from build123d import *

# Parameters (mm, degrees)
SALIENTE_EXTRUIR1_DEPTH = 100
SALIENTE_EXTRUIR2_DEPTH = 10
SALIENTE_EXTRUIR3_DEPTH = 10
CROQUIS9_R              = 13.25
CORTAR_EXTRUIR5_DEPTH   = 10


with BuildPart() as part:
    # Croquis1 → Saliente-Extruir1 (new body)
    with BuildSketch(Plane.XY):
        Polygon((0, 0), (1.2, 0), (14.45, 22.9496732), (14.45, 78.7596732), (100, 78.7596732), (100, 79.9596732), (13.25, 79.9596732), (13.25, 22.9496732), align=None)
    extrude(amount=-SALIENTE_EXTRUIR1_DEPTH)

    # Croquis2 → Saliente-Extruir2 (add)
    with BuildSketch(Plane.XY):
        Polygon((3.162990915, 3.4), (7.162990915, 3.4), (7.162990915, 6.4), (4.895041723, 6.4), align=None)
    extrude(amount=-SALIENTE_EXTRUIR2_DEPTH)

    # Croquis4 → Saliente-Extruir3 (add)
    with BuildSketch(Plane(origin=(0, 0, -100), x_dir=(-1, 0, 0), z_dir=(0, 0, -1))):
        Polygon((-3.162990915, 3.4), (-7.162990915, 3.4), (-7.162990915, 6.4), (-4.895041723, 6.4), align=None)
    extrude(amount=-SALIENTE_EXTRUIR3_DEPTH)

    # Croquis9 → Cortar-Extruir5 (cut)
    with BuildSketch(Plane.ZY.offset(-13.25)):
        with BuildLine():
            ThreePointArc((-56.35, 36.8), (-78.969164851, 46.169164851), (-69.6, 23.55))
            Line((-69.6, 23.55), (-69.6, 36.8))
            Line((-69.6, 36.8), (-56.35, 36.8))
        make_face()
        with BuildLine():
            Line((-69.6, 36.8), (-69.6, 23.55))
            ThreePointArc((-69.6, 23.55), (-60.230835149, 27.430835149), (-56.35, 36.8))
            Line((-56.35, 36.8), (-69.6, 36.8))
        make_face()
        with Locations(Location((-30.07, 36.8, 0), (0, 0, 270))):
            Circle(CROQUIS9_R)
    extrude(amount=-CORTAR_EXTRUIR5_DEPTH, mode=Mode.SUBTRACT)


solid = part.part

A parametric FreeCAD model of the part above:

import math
import FreeCAD as App
import Part
import Sketcher

V = App.Vector
Q = App.Units.Quantity


def add_polygon(sketch, points):
    """Adds a closed chain of lines whose ends are joined by coincident constraints."""
    first, n = sketch.GeometryCount, len(points)
    for a, b in zip(points, points[1:] + points[:1]):
        sketch.addGeometry(Part.LineSegment(App.Vector(*a, 0), App.Vector(*b, 0)), False)
    for i in range(n):
        sketch.addConstraint(Sketcher.Constraint("Coincident", first + i, 2, first + (i + 1) % n, 1))

doc = App.newDocument("Part")
body = doc.addObject("PartDesign::Body", "Body")

sketch1 = body.newObject("Sketcher::SketchObject", "Sketch")
sketch1.AttachmentSupport = (doc.getObject("XY_Plane"), [""])
sketch1.MapMode = "FlatFace"
add_polygon(sketch1, [(0, 0), (1.2, 0), (14.45, 22.949673), (14.45, 78.759673), (100, 78.759673), (100, 79.959673), (13.25, 79.959673), (13.25, 22.949673)])
sketch1.addConstraint([
    Sketcher.Constraint("Horizontal", 0),
    Sketcher.Constraint("Vertical", 2),
    Sketcher.Constraint("Horizontal", 3),
    Sketcher.Constraint("Vertical", 4),
    Sketcher.Constraint("Horizontal", 5),
    Sketcher.Constraint("Vertical", 6),
    Sketcher.Constraint("Coincident", 7, 2, -1, 1),
    Sketcher.Constraint("Parallel", 1, 7),
    Sketcher.Constraint("Horizontal", 1, 2, 6, 2),
    Sketcher.Constraint("Equal", 0, 4),
    Sketcher.Constraint("Angle", 1, Q("60 deg")),
    Sketcher.Constraint("DistanceX", 0, 1, 0, 2, Q("1.2 mm")),
    Sketcher.Constraint("DistanceX", -1, 1, 3, 2, Q("100 mm")),
    Sketcher.Constraint("Distance", 1, Q("26.5 mm")),
    Sketcher.Constraint("DistanceY", 2, 1, 2, 2, Q("55.81 mm")),
])
pad1 = body.newObject("PartDesign::Pad", "Pad")
pad1.Profile = sketch1
pad1.Length = 100
pad1.Reversed = True

sketch2 = body.newObject("Sketcher::SketchObject", "Sketch001")
sketch2.AttachmentSupport = (doc.getObject("XY_Plane"), [""])
sketch2.MapMode = "FlatFace"
add_polygon(sketch2, [(3.162991, 3.4), (7.162991, 3.4), (7.162991, 6.4), (4.895042, 6.4)])
sketch2.addConstraint([
    Sketcher.Constraint("Horizontal", 0),
    Sketcher.Constraint("Vertical", 1),
    Sketcher.Constraint("Horizontal", 2),
    Sketcher.Constraint("DistanceX", 0, 1, 0, 2, Q("4 mm")),
    Sketcher.Constraint("DistanceY", 1, 1, 1, 2, Q("3 mm")),
    Sketcher.Constraint("Angle", 3, Q("-120 deg")),
    Sketcher.Constraint("DistanceY", -1, 1, 0, 2, Q("3.4 mm")),
    Sketcher.Constraint("DistanceX", -1, 1, 0, 2, Q("7.162991 mm")),
])
pad2 = body.newObject("PartDesign::Pad", "Pad001")
pad2.Profile = sketch2
pad2.Length = 10
pad2.Reversed = True

sketch3 = body.newObject("Sketcher::SketchObject", "Sketch002")
sketch3.AttachmentSupport = (doc.getObject("XY_Plane"), [""])
sketch3.MapMode = "FlatFace"
sketch3.AttachmentOffset = App.Placement(V(0, 0, -100), App.Rotation())
add_polygon(sketch3, [(7.162991, 3.4), (3.162991, 3.4), (4.895042, 6.4), (7.162991, 6.4)])
sketch3.addConstraint([
    Sketcher.Constraint("Horizontal", 0),
    Sketcher.Constraint("Horizontal", 2),
    Sketcher.Constraint("Vertical", 3),
    Sketcher.Constraint("DistanceX", 0, 2, 0, 1, Q("4 mm")),
    Sketcher.Constraint("DistanceY", 3, 2, 3, 1, Q("3 mm")),
    Sketcher.Constraint("Angle", 1, Q("60 deg")),
    Sketcher.Constraint("DistanceY", -1, 1, 0, 2, Q("3.4 mm")),
    Sketcher.Constraint("DistanceX", -1, 1, 0, 2, Q("3.162991 mm")),
])
pad3 = body.newObject("PartDesign::Pad", "Pad002")
pad3.Profile = sketch3
pad3.Length = 10

sketch4 = body.newObject("Sketcher::SketchObject", "Sketch003")
sketch4.AttachmentSupport = (doc.getObject("YZ_Plane"), [""])
sketch4.MapMode = "FlatFace"
sketch4.AttachmentOffset = App.Placement(V(0, 0, 13.25), App.Rotation())
sketch4.addGeometry([
    Part.ArcOfCircle(Part.Circle(V(36.8, -69.6, 0), V(0, 0, 1), 13.25), math.radians(180), math.radians(450)),
    Part.ArcOfCircle(Part.Circle(V(36.8, -69.6, 0), V(0, 0, 1), 13.25), math.radians(90), math.radians(180)),
    Part.Circle(V(36.8, -30.07, 0), V(0, 0, 1), 13.25),
], False)
sketch4.addConstraint([
    Sketcher.Constraint("Tangent", 0, 1, 1, 2),
    Sketcher.Constraint("Coincident", 1, 1, 0, 2),
    Sketcher.Constraint("Equal", 1, 2),
    Sketcher.Constraint("Horizontal", 1, 3, 0, 1),
    Sketcher.Constraint("Vertical", 1, 3, 2, 3),
    Sketcher.Constraint("Vertical", 2, 3, 1, 1),
    Sketcher.Constraint("Diameter", 2, Q("26.5 mm")),
    Sketcher.Constraint("DistanceX", -1, 1, 0, 3, Q("36.8 mm")),
    Sketcher.Constraint("DistanceY", 0, 3, -1, 1, Q("69.6 mm")),
    Sketcher.Constraint("DistanceY", 2, 3, -1, 1, Q("30.07 mm")),
])
pocket1 = body.newObject("PartDesign::Pocket", "Pocket")
pocket1.Profile = sketch4
pocket1.Length = 10
pocket1.Reversed = True

doc.recompute()
